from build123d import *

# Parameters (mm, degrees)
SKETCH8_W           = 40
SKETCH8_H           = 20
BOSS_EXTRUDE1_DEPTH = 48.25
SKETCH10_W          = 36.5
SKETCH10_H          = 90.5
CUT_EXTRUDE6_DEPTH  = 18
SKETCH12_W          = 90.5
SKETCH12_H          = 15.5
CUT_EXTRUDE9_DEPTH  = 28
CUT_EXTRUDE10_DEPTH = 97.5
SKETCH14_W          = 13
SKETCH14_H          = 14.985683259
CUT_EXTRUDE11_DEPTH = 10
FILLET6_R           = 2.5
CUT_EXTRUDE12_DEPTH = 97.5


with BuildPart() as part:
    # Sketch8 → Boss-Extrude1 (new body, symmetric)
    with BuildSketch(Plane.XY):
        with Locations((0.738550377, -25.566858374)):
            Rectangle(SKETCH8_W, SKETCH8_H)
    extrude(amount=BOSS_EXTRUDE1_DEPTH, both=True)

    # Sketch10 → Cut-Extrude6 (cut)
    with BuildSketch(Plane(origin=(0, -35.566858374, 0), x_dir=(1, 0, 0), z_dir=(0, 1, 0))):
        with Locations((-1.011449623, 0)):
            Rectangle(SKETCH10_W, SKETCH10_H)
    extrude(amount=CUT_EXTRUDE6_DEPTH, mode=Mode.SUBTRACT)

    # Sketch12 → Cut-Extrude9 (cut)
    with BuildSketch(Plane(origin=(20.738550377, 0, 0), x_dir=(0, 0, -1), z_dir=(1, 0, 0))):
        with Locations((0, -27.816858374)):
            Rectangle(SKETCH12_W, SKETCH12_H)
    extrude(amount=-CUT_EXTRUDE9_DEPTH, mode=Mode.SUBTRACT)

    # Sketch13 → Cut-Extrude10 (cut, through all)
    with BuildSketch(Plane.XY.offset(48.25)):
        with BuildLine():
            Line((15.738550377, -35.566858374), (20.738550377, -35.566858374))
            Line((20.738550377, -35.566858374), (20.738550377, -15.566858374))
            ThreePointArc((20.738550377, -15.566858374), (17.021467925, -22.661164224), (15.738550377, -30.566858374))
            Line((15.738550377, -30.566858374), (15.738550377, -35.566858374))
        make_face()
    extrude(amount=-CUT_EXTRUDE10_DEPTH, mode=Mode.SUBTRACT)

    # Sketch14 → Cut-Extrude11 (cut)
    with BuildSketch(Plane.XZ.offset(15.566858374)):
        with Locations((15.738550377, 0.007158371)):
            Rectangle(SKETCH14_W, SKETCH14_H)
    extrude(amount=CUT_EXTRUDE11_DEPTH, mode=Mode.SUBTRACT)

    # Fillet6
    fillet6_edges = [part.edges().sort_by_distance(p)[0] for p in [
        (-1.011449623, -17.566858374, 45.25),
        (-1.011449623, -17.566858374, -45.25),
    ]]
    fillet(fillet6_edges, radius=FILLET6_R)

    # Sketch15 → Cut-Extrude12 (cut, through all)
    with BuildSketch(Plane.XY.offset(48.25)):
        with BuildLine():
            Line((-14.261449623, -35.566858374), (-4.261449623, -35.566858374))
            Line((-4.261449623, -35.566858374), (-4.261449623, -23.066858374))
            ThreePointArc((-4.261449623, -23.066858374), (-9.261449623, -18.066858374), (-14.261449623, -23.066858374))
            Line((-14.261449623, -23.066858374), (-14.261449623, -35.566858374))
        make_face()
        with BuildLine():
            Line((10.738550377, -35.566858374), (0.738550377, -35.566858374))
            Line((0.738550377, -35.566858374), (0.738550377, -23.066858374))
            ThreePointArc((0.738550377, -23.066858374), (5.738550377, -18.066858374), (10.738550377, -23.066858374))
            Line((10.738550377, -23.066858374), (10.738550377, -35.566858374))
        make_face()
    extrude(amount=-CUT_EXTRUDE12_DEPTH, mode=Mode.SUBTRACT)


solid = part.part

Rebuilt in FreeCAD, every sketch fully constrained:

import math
import FreeCAD as App
import Part
import Sketcher
from FreeCAD import Vector


def edges_at(feature, points):
    """Names of the edges that pass closest to the given points."""
    edges = feature.Shape.Edges
    near = lambda p: min(range(len(edges)), key=lambda i: edges[i].distToShape(Part.Vertex(*p))[0])
    return sorted({f"Edge{near(p) + 1}" for p in points})

doc = App.newDocument("Part")
body = doc.addObject("PartDesign::Body", "Body")

# Sketch on XY plane
sketch1 = doc.addObject("Sketcher::SketchObject", "Sketch")
body.addObject(sketch1)
sketch1.AttachmentSupport = (doc.XY_Plane, [""])
sketch1.MapMode = "FlatFace"
sketch1.addGeometry(Part.LineSegment(Vector(-19, -16, 0), Vector(-19, -36, 0)), False)
sketch1.addGeometry(Part.LineSegment(Vector(-19, -36, 0), Vector(21, -36, 0)), False)
sketch1.addGeometry(Part.LineSegment(Vector(21, -36, 0), Vector(21, -16, 0)), False)
sketch1.addGeometry(Part.LineSegment(Vector(21, -16, 0), Vector(-19, -16, 0)), False)
sketch1.addConstraint(Sketcher.Constraint("Coincident", 0, 2, 1, 1))
sketch1.addConstraint(Sketcher.Constraint("Coincident", 1, 2, 2, 1))
sketch1.addConstraint(Sketcher.Constraint("Coincident", 2, 2, 3, 1))
sketch1.addConstraint(Sketcher.Constraint("Coincident", 3, 2, 0, 1))
sketch1.addConstraint(Sketcher.Constraint("Vertical", 0))
sketch1.addConstraint(Sketcher.Constraint("Horizontal", 1))
sketch1.addConstraint(Sketcher.Constraint("Vertical", 2))
sketch1.addConstraint(Sketcher.Constraint("Horizontal", 3))
sketch1.addConstraint(Sketcher.Constraint("DistanceX", 1, 1, 1, 2, 40.0))
sketch1.addConstraint(Sketcher.Constraint("DistanceY", 0, 2, 0, 1, 20.0))
sketch1.addConstraint(Sketcher.Constraint("DistanceX", 0, 2, -1, 1, 19.26145))
sketch1.addConstraint(Sketcher.Constraint("DistanceY", 0, 2, -1, 1, 35.566858))
pad1 = doc.addObject("PartDesign::Pad", "Pad")
body.addObject(pad1)
pad1.Profile = sketch1
pad1.Length = 96.5
pad1.Midplane = True

# Sketch on XZ plane
sketch2 = doc.addObject("Sketcher::SketchObject", "Sketch001")
body.addObject(sketch2)
sketch2.AttachmentSupport = (doc.XZ_Plane, [""])
sketch2.MapMode = "FlatFace"
sketch2.AttachmentOffset = App.Placement(Vector(0, 0, 35.566858), App.Rotation())
sketch2.addGeometry(Part.LineSegment(Vector(-19, -45, 0), Vector(-19, 45, 0)), False)
sketch2.addGeometry(Part.LineSegment(Vector(-19, 45, 0), Vector(17, 45, 0)), False)
sketch2.addGeometry(Part.LineSegment(Vector(17, 45, 0), Vector(17, -45, 0)), False)
sketch2.addGeometry(Part.LineSegment(Vector(17, -45, 0), Vector(-19, -45, 0)), False)
sketch2.addConstraint(Sketcher.Constraint("Coincident", 0, 2, 1, 1))
sketch2.addConstraint(Sketcher.Constraint("Coincident", 1, 2, 2, 1))
sketch2.addConstraint(Sketcher.Constraint("Coincident", 2, 2, 3, 1))
sketch2.addConstraint(Sketcher.Constraint("Coincident", 3, 2, 0, 1))
sketch2.addConstraint(Sketcher.Constraint("Vertical", 0))
sketch2.addConstraint(Sketcher.Constraint("Horizontal", 1))
sketch2.addConstraint(Sketcher.Constraint("Vertical", 2))
sketch2.addConstraint(Sketcher.Constraint("Horizontal", 3))
sketch2.addConstraint(Sketcher.Constraint("DistanceX", 1, 1, 1, 2, 36.5))
sketch2.addConstraint(Sketcher.Constraint("DistanceY", 0, 1, 0, 2, 90.5))
sketch2.addConstraint(Sketcher.Constraint("DistanceY", -1, 1, 0, 2, 45.25))
sketch2.addConstraint(Sketcher.Constraint("DistanceX", 0, 2, -1, 1, 19.26145))
pocket1 = doc.addObject("PartDesign::Pocket", "Pocket")
body.addObject(pocket1)
pocket1.Profile = sketch2
pocket1.Length = 18

# Sketch on YZ plane
sketch3 = doc.addObject("Sketcher::SketchObject", "Sketch002")
body.addObject(sketch3)
sketch3.AttachmentSupport = (doc.YZ_Plane, [""])
sketch3.MapMode = "FlatFace"
sketch3.AttachmentOffset = App.Placement(Vector(0, 0, 20.73855), App.Rotation())
sketch3.addGeometry(Part.LineSegment(Vector(-20, 45, 0), Vector(-36, 45, 0)), False)
sketch3.addGeometry(Part.LineSegment(Vector(-36, 45, 0), Vector(-36, -45, 0)), False)
sketch3.addGeometry(Part.LineSegment(Vector(-36, -45, 0), Vector(-20, -45, 0)), False)
sketch3.addGeometry(Part.LineSegment(Vector(-20, -45, 0), Vector(-20, 45, 0)), False)
sketch3.addConstraint(Sketcher.Constraint("Coincident", 0, 2, 1, 1))
sketch3.addConstraint(Sketcher.Constraint("Coincident", 1, 2, 2, 1))
sketch3.addConstraint(Sketcher.Constraint("Coincident", 2, 2, 3, 1))
sketch3.addConstraint(Sketcher.Constraint("Coincident", 3, 2, 0, 1))
sketch3.addConstraint(Sketcher.Constraint("Horizontal", 0))
sketch3.addConstraint(Sketcher.Constraint("Vertical", 1))
sketch3.addConstraint(Sketcher.Constraint("Horizontal", 2))
sketch3.addConstraint(Sketcher.Constraint("Vertical", 3))
sketch3.addConstraint(Sketcher.Constraint("DistanceX", 0, 2, 0, 1, 15.5))
sketch3.addConstraint(Sketcher.Constraint("DistanceY", 1, 2, 1, 1, 90.5))
sketch3.addConstraint(Sketcher.Constraint("DistanceY", -1, 1, 0, 2, 45.25))
sketch3.addConstraint(Sketcher.Constraint("DistanceX", 0, 2, -1, 1, 35.566858))
pocket2 = doc.addObject("PartDesign::Pocket", "Pocket001")
body.addObject(pocket2)
pocket2.Profile = sketch3
pocket2.Length = 28

# Sketch on XY plane
sketch4 = doc.addObject("Sketcher::SketchObject", "Sketch003")
body.addObject(sketch4)
sketch4.AttachmentSupport = (doc.XY_Plane, [""])
sketch4.MapMode = "FlatFace"
sketch4.AttachmentOffset = App.Placement(Vector(0, 0, 48.25), App.Rotation())
sketch4.addGeometry(Part.LineSegment(Vector(16, -36, 0), Vector(21, -36, 0)), False)
sketch4.addGeometry(Part.LineSegment(Vector(21, -36, 0), Vector(21, -16, 0)), False)
sketch4.addGeometry(Part.ArcOfCircle(Part.Circle(Vector(41, -31, 0), Vector(0, 0, 1), 25), math.radians(143), math.radians(180)), False)
sketch4.addGeometry(Part.LineSegment(Vector(16, -31, 0), Vector(16, -36, 0)), False)
sketch4.addConstraint(Sketcher.Constraint("Coincident", 0, 2, 1, 1))
sketch4.addConstraint(Sketcher.Constraint("Coincident", 1, 2, 2, 1))
sketch4.addConstraint(Sketcher.Constraint("Tangent", 2, 2, 3, 1))
sketch4.addConstraint(Sketcher.Constraint("Coincident", 3, 2, 0, 1))
sketch4.addConstraint(Sketcher.Constraint("Horizontal", 0))
sketch4.addConstraint(Sketcher.Constraint("Vertical", 1))
sketch4.addConstraint(Sketcher.Constraint("Vertical", 3))
sketch4.addConstraint(Sketcher.Constraint("Equal", 0, 3))
sketch4.addConstraint(Sketcher.Constraint("Radius", 2, 25.0))
sketch4.addConstraint(Sketcher.Constraint("DistanceX", 0, 1, 0, 2, 5.0))
sketch4.addConstraint(Sketcher.Constraint("DistanceX", -1, 1, 2, 3, 40.73855))
sketch4.addConstraint(Sketcher.Constraint("DistanceY", 2, 3, -1, 1, 30.566858))
pocket3 = doc.addObject("PartDesign::Pocket", "Pocket002")
body.addObject(pocket3)
pocket3.Profile = sketch4
pocket3.Type = "ThroughAll"

# Sketch on XZ plane
sketch5 = doc.addObject("Sketcher::SketchObject", "Sketch004")
body.addObject(sketch5)
sketch5.AttachmentSupport = (doc.XZ_Plane, [""])
sketch5.MapMode = "FlatFace"
sketch5.AttachmentOffset = App.Placement(Vector(0, 0, 15.566858), App.Rotation())
sketch5.addGeometry(Part.LineSegment(Vector(9, 8, 0), Vector(9, -7, 0)), False)
sketch5.addGeometry(Part.LineSegment(Vector(9, -7, 0), Vector(22, -7, 0)), False)
sketch5.addGeometry(Part.LineSegment(Vector(22, -7, 0), Vector(22, 8, 0)), False)
sketch5.addGeometry(Part.LineSegment(Vector(22, 8, 0), Vector(9, 8, 0)), False)
sketch5.addConstraint(Sketcher.Constraint("Coincident", 0, 2, 1, 1))
sketch5.addConstraint(Sketcher.Constraint("Coincident", 1, 2, 2, 1))
sketch5.addConstraint(Sketcher.Constraint("Coincident", 2, 2, 3, 1))
sketch5.addConstraint(Sketcher.Constraint("Coincident", 3, 2, 0, 1))
sketch5.addConstraint(Sketcher.Constraint("Vertical", 0))
sketch5.addConstraint(Sketcher.Constraint("Horizontal", 1))
sketch5.addConstraint(Sketcher.Constraint("Vertical", 2))
sketch5.addConstraint(Sketcher.Constraint("Horizontal", 3))
sketch5.addConstraint(Sketcher.Constraint("DistanceX", 1, 1, 1, 2, 13.0))
sketch5.addConstraint(Sketcher.Constraint("DistanceY", -1, 1, 2, 2, 7.5))
sketch5.addConstraint(Sketcher.Constraint("DistanceY", 0, 2, 0, 1, 14.985683))
sketch5.addConstraint(Sketcher.Constraint("DistanceX", -1, 1, 0, 2, 9.23855))
pocket4 = doc.addObject("PartDesign::Pocket", "Pocket003")
body.addObject(pocket4)
pocket4.Profile = sketch5
pocket4.Length = 10
pocket4.Reversed = True
doc.recompute()

fillet = doc.addObject("PartDesign::Fillet", "Fillet")
body.addObject(fillet)
fillet.Base = (pocket4, edges_at(pocket4, [(-1.011, -17.567, 45.25), (-1.011, -17.567, -45.25)]))
fillet.Radius = 2.5

# Sketch on XY plane
sketch6 = doc.addObject("Sketcher::SketchObject", "Sketch005")
body.addObject(sketch6)
sketch6.AttachmentSupport = (doc.XY_Plane, [""])
sketch6.MapMode = "FlatFace"
sketch6.AttachmentOffset = App.Placement(Vector(0, 0, 48.25), App.Rotation())
sketch6.addGeometry(Part.LineSegment(Vector(-14, -36, 0), Vector(-4, -36, 0)), False)
sketch6.addGeometry(Part.LineSegment(Vector(-4, -36, 0), Vector(-4, -23, 0)), False)
sketch6.addGeometry(Part.ArcOfCircle(Part.Circle(Vector(-9, -23, 0), Vector(0, 0, 1), 5), math.radians(0), math.radians(180)), False)
sketch6.addGeometry(Part.LineSegment(Vector(-14, -23, 0), Vector(-14, -36, 0)), False)
sketch6.addGeometry(Part.LineSegment(Vector(1, -36, 0), Vector(11, -36, 0)), False)
sketch6.addGeometry(Part.LineSegment(Vector(11, -36, 0), Vector(11, -23, 0)), False)
sketch6.addGeometry(Part.ArcOfCircle(Part.Circle(Vector(6, -23, 0), Vector(0, 0, 1), 5), math.radians(0), math.radians(180)), False)
sketch6.addGeometry(Part.LineSegment(Vector(1, -23, 0), Vector(1, -36, 0)), False)
sketch6.addConstraint(Sketcher.Constraint("Coincident", 0, 2, 1, 1))
sketch6.addConstraint(Sketcher.Constraint("Tangent", 1, 2, 2, 1))
sketch6.addConstraint(Sketcher.Constraint("Tangent", 2, 2, 3, 1))
sketch6.addConstraint(Sketcher.Constraint("Coincident", 3, 2, 0, 1))
sketch6.addConstraint(Sketcher.Constraint("Coincident", 4, 2, 5, 1))
sketch6.addConstraint(Sketcher.Constraint("Tangent", 5, 2, 6, 1))
sketch6.addConstraint(Sketcher.Constraint("Tangent", 6, 2, 7, 1))
sketch6.addConstraint(Sketcher.Constraint("Coincident", 7, 2, 4, 1))
sketch6.addConstraint(Sketcher.Constraint("Horizontal", 0))
sketch6.addConstraint(Sketcher.Constraint("Vertical", 1))
sketch6.addConstraint(Sketcher.Constraint("Vertical", 3))
sketch6.addConstraint(Sketcher.Constraint("Horizontal", 4))
sketch6.addConstraint(Sketcher.Constraint("Vertical", 5))
sketch6.addConstraint(Sketcher.Constraint("Vertical", 7))
sketch6.addConstraint(Sketcher.Constraint("Equal", 2, 6))
sketch6.addConstraint(Sketcher.Constraint("Horizontal", 2, 3, 6, 3))
sketch6.addConstraint(Sketcher.Constraint("Horizontal", 3, 2, 4, 2))
sketch6.addConstraint(Sketcher.Constraint("Radius", 2, 5.0))
sketch6.addConstraint(Sketcher.Constraint("DistanceY", 1, 1, 1, 2, 12.5))
sketch6.addConstraint(Sketcher.Constraint("DistanceX", 2, 3, 6, 3, 15.0))
sketch6.addConstraint(Sketcher.Constraint("DistanceX", 2, 3, -1, 1, 9.26145))
sketch6.addConstraint(Sketcher.Constraint("DistanceY", 2, 3, -1, 1, 23.066858))
pocket5 = doc.addObject("PartDesign::Pocket", "Pocket004")
body.addObject(pocket5)
pocket5.Profile = sketch6
pocket5.Type = "ThroughAll"

doc.recompute()
